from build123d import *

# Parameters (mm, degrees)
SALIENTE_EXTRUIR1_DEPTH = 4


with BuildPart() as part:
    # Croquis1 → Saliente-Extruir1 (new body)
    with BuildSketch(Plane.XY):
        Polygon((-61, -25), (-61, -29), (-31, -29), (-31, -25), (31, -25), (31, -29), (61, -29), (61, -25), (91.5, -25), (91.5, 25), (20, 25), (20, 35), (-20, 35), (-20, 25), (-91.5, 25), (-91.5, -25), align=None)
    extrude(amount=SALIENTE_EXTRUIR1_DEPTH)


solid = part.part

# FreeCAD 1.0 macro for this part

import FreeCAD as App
import Part
import Sketcher
Q = App.Units.Quantity


def add_polygon(sketch, points):
    """Adds a closed chain of lines whose ends are joined by coincident constraints."""
    first, n = sketch.GeometryCount, len(points)
    for a, b in zip(points, points[1:] + points[:1]):
        sketch.addGeometry(Part.LineSegment(App.Vector(*a, 0), App.Vector(*b, 0)), False)
    for i in range(n):
        sketch.addConstraint(Sketcher.Constraint("Coincident", first + i, 2, first + (i + 1) % n, 1))

doc = App.newDocument("Part")
body = doc.addObject("PartDesign::Body", "Body")

# Sketch on XY plane
sketch1 = doc.addObject("Sketcher::SketchObject", "Sketch")
body.addObject(sketch1)
sketch1.AttachmentSupport = (doc.XY_Plane, [""])
sketch1.MapMode = "FlatFace"
add_polygon(sketch1, [(-61, -25), (-61, -29), (-31, -29), (-31, -25), (31, -25), (31, -29), (61, -29), (61, -25), (91.5, -25), (91.5, 25), (20, 25), (20, 35), (-20, 35), (-20, 25), (-91.5, 25), (-91.5, -25)])  # lines 0-15
sketch1.addConstraint([
    Sketcher.Constraint("Vertical", 0),
    Sketcher.Constraint("Horizontal", 1),
    Sketcher.Constraint("Vertical", 2),
    Sketcher.Constraint("Horizontal", 3),
    Sketcher.Constraint("Vertical", 4),
    Sketcher.Constraint("Horizontal", 5),
    Sketcher.Constraint("Vertical", 6),
    Sketcher.Constraint("Horizontal", 7),
    Sketcher.Constraint("Vertical", 8),
    Sketcher.Constraint("Horizontal", 9),
    Sketcher.Constraint("Vertical", 10),
    Sketcher.Constraint("Horizontal", 11),
    Sketcher.Constraint("Vertical", 12),
    Sketcher.Constraint("Horizontal", 13),
    Sketcher.Constraint("Vertical", 14),
    Sketcher.Constraint("Horizontal", 15),
    Sketcher.Constraint("Symmetric", 7, 2, 13, 2, -1, 1),
    Sketcher.Constraint("Symmetric", 1, 2, 4, 2, -2),
    Sketcher.Constraint("Symmetric", 9, 2, 12, 2, -2),
    Sketcher.Constraint("Symmetric", 6, 2, 15, 2, -2),
    Sketcher.Constraint("Horizontal", 3, 2, 6, 2),
    Sketcher.Constraint("DistanceX", 1, 1, 1, 2, Q("30 mm")),
    Sketcher.Constraint("DistanceX", 3, 1, 3, 2, Q("62 mm")),
    Sketcher.Constraint("DistanceX", 11, 2, 11, 1, Q("40 mm")),
    Sketcher.Constraint("DistanceY", 0, 2, 0, 1, Q("4 mm")),
    Sketcher.Constraint("DistanceY", 8, 1, 8, 2, Q("50 mm")),
    Sketcher.Constraint("DistanceY", 10, 1, 10, 2, Q("10 mm")),
    Sketcher.Constraint("DistanceX", 7, 1, 7, 2, Q("30.5 mm")),
])
pad1 = doc.addObject("PartDesign::Pad", "Pad")
body.addObject(pad1)
pad1.Profile = sketch1
pad1.Length = 4

doc.recompute()
